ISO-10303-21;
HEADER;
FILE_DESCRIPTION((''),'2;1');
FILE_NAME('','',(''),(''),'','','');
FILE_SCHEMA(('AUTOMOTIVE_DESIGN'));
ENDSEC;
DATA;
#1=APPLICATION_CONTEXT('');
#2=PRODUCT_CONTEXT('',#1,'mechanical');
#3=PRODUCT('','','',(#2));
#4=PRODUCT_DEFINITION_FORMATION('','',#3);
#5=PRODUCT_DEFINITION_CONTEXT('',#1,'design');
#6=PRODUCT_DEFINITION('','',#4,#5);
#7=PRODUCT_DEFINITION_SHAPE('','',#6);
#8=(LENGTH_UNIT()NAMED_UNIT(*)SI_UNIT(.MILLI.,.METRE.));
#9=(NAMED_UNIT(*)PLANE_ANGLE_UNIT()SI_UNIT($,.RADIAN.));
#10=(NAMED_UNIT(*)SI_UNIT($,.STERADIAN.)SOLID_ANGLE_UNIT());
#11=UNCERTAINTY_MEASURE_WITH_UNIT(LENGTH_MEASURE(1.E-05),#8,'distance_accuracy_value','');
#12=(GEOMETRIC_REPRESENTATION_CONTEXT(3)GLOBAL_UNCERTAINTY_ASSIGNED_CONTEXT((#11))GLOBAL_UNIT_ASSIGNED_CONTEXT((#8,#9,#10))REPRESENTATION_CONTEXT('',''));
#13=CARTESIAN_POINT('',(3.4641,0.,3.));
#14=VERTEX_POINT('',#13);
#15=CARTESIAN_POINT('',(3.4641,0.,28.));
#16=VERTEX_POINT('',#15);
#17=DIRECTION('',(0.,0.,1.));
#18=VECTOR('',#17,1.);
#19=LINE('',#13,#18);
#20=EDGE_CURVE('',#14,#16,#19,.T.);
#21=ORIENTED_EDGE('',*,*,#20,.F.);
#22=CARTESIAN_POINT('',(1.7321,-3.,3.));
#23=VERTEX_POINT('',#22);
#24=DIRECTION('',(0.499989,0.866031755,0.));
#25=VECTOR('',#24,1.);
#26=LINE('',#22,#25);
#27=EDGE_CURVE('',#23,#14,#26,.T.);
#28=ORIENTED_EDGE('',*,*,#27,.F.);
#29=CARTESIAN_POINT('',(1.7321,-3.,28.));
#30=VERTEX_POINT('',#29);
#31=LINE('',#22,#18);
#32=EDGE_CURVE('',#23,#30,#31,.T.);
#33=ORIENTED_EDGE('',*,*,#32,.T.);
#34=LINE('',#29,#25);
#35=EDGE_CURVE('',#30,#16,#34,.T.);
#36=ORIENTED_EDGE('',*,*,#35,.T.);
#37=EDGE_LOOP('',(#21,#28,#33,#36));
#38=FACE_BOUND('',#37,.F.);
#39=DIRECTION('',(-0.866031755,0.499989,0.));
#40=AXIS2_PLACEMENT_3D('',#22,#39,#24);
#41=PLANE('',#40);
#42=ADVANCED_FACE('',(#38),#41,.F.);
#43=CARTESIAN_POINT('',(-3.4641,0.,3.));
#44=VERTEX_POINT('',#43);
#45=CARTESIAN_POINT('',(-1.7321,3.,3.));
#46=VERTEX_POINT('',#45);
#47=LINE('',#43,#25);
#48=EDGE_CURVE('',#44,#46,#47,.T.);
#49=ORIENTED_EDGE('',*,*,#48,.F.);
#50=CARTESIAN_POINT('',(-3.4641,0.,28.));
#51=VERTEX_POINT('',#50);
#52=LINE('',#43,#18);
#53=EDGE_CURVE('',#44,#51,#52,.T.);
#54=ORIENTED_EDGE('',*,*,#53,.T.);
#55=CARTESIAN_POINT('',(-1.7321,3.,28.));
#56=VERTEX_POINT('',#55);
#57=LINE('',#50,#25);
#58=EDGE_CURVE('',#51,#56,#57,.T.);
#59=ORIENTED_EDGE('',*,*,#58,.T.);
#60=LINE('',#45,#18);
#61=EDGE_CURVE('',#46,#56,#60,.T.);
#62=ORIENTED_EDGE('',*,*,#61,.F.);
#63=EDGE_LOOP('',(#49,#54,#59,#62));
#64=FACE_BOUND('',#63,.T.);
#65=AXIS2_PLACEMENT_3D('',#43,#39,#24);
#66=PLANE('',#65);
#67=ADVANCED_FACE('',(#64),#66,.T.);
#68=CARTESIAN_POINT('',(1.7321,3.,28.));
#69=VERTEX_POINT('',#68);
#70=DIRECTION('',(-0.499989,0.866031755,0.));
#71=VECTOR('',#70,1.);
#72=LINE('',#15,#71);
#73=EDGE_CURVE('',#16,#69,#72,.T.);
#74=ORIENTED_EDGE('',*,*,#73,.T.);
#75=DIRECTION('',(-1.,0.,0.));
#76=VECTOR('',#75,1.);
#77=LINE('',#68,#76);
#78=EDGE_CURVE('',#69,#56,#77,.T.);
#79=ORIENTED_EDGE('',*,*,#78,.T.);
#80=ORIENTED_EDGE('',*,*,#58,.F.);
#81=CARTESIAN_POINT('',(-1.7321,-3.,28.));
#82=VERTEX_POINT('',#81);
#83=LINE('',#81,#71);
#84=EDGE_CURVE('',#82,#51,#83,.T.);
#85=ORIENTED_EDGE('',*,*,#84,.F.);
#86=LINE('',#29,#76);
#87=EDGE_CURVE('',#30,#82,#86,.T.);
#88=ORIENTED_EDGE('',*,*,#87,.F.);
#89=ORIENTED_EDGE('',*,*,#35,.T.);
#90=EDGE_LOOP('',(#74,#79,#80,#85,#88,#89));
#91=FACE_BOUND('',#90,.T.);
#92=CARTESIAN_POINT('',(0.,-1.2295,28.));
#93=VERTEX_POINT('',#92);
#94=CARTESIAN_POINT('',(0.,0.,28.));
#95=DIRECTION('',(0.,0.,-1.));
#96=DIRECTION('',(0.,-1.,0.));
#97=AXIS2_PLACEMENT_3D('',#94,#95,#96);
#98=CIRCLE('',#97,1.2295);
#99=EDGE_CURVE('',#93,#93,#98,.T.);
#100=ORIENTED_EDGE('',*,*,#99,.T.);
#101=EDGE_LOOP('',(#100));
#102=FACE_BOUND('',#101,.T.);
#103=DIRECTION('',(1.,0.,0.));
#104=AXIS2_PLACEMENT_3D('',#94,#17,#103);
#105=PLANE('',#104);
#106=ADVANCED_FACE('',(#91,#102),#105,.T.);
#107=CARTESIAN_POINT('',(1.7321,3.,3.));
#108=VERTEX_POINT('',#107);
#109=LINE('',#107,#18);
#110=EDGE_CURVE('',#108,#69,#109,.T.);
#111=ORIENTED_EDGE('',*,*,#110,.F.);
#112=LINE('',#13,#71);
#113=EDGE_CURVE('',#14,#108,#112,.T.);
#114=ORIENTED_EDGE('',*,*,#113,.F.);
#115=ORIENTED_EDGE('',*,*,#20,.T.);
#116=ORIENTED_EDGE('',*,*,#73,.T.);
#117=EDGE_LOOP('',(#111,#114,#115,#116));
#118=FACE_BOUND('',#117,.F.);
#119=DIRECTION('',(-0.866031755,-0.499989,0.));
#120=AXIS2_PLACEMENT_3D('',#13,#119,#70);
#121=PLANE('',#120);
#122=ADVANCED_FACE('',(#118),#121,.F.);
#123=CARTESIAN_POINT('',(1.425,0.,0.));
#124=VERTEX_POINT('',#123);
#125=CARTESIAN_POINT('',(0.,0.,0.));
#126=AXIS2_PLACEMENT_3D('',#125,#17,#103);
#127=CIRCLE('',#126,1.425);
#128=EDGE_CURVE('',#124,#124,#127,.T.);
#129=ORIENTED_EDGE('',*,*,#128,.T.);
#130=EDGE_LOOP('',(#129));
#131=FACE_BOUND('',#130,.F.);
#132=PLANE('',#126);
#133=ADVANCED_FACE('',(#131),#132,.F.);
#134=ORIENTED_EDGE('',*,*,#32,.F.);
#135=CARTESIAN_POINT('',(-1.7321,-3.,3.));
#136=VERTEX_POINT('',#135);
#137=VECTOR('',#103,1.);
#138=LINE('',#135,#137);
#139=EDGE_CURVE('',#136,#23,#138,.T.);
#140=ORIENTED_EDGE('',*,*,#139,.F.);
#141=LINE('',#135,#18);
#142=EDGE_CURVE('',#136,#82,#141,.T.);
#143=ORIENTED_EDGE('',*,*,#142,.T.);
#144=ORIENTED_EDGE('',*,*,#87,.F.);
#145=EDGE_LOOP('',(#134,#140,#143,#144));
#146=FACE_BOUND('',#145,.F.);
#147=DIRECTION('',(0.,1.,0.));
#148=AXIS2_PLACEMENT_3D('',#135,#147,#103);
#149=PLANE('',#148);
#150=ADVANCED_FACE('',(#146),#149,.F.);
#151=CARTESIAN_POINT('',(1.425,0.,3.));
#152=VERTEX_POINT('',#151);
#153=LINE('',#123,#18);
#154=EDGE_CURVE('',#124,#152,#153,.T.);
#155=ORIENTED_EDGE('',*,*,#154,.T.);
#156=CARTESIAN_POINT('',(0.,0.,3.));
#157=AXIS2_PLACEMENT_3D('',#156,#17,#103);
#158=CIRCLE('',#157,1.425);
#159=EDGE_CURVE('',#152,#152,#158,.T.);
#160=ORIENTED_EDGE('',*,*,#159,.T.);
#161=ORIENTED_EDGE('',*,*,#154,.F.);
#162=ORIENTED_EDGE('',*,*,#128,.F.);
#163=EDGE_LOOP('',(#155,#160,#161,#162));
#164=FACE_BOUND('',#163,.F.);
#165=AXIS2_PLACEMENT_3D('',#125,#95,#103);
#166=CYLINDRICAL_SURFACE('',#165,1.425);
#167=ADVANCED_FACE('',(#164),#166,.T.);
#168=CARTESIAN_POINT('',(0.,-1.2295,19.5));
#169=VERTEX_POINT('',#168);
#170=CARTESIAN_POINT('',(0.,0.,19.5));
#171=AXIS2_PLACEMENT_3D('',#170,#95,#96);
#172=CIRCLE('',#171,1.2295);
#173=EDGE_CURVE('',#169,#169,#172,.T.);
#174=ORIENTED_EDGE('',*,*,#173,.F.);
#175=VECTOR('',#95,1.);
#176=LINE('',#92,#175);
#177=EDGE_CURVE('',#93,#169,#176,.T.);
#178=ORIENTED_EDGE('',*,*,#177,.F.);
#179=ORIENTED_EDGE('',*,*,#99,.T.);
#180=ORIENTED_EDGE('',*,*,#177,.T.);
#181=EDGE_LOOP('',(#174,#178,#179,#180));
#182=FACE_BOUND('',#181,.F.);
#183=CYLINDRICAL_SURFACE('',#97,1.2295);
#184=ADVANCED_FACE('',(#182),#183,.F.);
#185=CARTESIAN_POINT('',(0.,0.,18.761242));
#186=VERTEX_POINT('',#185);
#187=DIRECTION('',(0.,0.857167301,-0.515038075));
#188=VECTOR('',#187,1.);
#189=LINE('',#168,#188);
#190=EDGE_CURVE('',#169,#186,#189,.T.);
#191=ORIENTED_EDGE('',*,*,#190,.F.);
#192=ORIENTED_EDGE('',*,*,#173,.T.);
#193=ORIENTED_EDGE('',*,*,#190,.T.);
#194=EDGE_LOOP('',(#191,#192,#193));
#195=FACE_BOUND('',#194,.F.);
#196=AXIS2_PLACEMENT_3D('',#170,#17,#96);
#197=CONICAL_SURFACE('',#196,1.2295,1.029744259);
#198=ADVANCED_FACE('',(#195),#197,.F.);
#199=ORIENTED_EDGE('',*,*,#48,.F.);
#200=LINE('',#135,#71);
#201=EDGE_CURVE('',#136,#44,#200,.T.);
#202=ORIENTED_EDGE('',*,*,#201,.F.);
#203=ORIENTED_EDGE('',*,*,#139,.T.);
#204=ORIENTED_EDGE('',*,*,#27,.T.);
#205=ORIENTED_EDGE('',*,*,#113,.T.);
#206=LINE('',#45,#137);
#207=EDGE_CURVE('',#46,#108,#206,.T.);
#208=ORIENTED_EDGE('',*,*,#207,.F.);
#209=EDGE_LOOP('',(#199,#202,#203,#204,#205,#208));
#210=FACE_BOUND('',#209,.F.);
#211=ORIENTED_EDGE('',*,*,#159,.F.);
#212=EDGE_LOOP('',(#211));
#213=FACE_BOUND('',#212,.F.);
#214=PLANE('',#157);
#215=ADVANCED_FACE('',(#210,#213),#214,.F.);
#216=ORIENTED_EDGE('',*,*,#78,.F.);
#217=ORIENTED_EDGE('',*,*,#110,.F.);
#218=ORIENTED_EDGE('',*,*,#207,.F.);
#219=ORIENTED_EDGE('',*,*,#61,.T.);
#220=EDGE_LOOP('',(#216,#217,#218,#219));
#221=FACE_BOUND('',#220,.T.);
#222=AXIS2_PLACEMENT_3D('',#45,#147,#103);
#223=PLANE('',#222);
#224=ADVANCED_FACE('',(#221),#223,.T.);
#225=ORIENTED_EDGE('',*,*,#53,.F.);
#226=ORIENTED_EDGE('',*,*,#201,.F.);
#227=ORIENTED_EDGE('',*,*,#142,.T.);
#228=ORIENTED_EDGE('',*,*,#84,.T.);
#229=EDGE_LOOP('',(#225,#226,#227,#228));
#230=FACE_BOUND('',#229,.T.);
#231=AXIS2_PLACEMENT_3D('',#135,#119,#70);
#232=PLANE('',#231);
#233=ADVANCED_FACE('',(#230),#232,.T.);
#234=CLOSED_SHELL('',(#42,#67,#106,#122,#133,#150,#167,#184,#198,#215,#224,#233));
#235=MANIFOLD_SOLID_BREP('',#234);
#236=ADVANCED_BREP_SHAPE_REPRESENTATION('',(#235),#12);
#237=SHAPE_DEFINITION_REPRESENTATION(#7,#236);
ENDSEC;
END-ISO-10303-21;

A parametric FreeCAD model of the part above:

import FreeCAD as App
import Part
import Sketcher
from FreeCAD import Vector
Q = App.Units.Quantity


def add_polygon(sketch, points):
    """Adds a closed chain of lines whose ends are joined by coincident constraints."""
    first, n = sketch.GeometryCount, len(points)
    for a, b in zip(points, points[1:] + points[:1]):
        sketch.addGeometry(Part.LineSegment(App.Vector(*a, 0), App.Vector(*b, 0)), False)
    for i in range(n):
        sketch.addConstraint(Sketcher.Constraint("Coincident", first + i, 2, first + (i + 1) % n, 1))

doc = App.newDocument("Part")
body = doc.addObject("PartDesign::Body", "Body")

# Sketch on XY plane
sketch1 = body.newObject("Sketcher::SketchObject", "Sketch")
sketch1.AttachmentSupport = (doc.getObject("XY_Plane"), [""])
sketch1.MapMode = "FlatFace"
sketch1.addGeometry(Part.Circle(Vector(0, 0, 0), Vector(0, 0, 1), 1.425), False)
sketch1.addConstraint(Sketcher.Constraint("Coincident", 0, 3, -1, 1))
sketch1.addConstraint(Sketcher.Constraint("Diameter", 0, Q("2.85 mm")))
pad1 = body.newObject("PartDesign::Pad", "Pad")
pad1.Profile = sketch1
pad1.Length = 3

# Sketch on XY plane
sketch2 = body.newObject("Sketcher::SketchObject", "Sketch001")
sketch2.AttachmentSupport = (doc.getObject("XY_Plane"), [""])
sketch2.MapMode = "FlatFace"
sketch2.AttachmentOffset = App.Placement(Vector(0, 0, 3), App.Rotation())
add_polygon(sketch2, [(-3.4641, 0), (-1.7321, -3), (1.7321, -3), (3.4641, 0), (1.7321, 3), (-1.7321, 3)])  # lines 0-5
sketch2.addConstraint(Sketcher.Constraint("Horizontal", 1))
sketch2.addConstraint(Sketcher.Constraint("Horizontal", 4))
sketch2.addConstraint(Sketcher.Constraint("Symmetric", 0, 2, 3, 2, -1, 1))
sketch2.addConstraint(Sketcher.Constraint("Symmetric", 2, 2, 5, 2, -1, 1))
sketch2.addConstraint(Sketcher.Constraint("PointOnObject", 2, 2, -1))
sketch2.addConstraint(Sketcher.Constraint("Parallel", 2, 5))
sketch2.addConstraint(Sketcher.Constraint("Vertical", 1, 2, 3, 2))
sketch2.addConstraint(Sketcher.Constraint("DistanceY", 1, 2, 3, 2, Q("6 mm")))
sketch2.addConstraint(Sketcher.Constraint("Angle", 0, Q("-60.0007 deg")))
sketch2.addConstraint(Sketcher.Constraint("DistanceX", 1, 1, 1, 2, Q("3.4642 mm")))
pad2 = body.newObject("PartDesign::Pad", "Pad001")
pad2.Profile = sketch2
pad2.Length = 25

# Sketch on XY plane
sketch3 = body.newObject("Sketcher::SketchObject", "Sketch002")
sketch3.AttachmentSupport = (doc.getObject("XY_Plane"), [""])
sketch3.MapMode = "FlatFace"
sketch3.AttachmentOffset = App.Placement(Vector(0, 0, 28), App.Rotation())
sketch3.addGeometry(Part.Circle(Vector(0, 0, 0), Vector(0, 0, 1), 1.2295), False)
sketch3.addConstraint(Sketcher.Constraint("Coincident", 0, 3, -1, 1))
sketch3.addConstraint(Sketcher.Constraint("Diameter", 0, Q("2.459 mm")))
doc.recompute()
hole = body.newObject("PartDesign::Hole", "Hole")
hole.Profile = sketch3
hole.ThreadType = "None"
hole.Diameter = 2.459
hole.DepthType = "Dimension"
hole.Depth = 8.5
hole.DrillPoint = "Angled"
hole.DrillPointAngle = 118

doc.recompute()
